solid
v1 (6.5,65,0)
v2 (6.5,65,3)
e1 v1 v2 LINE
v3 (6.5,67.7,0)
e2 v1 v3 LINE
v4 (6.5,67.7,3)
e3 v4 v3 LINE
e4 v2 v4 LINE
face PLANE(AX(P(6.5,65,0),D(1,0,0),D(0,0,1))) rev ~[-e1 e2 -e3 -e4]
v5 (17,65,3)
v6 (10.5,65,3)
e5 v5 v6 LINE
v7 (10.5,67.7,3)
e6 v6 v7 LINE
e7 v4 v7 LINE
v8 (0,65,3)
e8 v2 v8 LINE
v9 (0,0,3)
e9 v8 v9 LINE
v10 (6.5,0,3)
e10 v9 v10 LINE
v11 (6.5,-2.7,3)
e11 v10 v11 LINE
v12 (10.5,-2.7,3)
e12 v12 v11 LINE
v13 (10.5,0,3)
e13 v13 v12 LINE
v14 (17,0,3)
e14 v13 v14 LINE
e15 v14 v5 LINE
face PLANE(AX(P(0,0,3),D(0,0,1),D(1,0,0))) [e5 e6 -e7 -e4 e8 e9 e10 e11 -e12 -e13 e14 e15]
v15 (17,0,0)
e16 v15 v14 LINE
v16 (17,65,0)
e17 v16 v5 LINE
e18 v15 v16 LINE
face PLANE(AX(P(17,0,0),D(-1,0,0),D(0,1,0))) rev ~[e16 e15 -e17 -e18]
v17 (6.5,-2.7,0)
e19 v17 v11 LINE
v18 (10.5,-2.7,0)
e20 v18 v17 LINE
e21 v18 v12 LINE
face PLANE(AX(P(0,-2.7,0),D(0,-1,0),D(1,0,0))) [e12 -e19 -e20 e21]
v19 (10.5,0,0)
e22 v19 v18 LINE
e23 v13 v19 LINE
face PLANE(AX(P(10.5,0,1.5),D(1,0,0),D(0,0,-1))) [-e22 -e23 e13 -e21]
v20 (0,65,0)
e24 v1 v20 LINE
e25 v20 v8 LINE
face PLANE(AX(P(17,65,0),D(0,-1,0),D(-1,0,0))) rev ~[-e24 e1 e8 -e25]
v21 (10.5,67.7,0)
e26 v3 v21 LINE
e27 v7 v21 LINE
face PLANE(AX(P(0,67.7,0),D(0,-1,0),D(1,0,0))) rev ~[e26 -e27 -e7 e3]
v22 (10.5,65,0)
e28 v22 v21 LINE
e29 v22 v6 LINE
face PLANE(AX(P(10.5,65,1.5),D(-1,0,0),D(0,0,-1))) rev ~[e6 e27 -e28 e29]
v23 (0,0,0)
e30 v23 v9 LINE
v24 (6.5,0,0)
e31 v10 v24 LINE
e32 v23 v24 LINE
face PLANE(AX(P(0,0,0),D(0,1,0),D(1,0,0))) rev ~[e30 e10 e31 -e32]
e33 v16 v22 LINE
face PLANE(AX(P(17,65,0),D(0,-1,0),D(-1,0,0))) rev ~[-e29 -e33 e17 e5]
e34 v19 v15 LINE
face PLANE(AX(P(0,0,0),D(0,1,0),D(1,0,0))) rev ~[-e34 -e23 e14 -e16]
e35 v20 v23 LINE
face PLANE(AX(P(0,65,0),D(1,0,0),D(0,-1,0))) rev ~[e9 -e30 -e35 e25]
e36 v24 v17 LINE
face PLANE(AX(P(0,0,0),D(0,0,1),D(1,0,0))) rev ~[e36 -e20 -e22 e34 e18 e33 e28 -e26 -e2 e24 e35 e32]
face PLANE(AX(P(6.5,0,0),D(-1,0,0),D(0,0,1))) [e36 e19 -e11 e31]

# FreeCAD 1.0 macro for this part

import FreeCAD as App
import Part
import Sketcher

V = App.Vector
Q = App.Units.Quantity

doc = App.newDocument("Part")
body = doc.addObject("PartDesign::Body", "Body")

# Sketch on XY plane
sketch1 = doc.addObject("Sketcher::SketchObject", "Sketch")
body.addObject(sketch1)
sketch1.AttachmentSupport = (doc.XY_Plane, [""])
sketch1.MapMode = "FlatFace"
sketch1.addGeometry([
    Part.LineSegment(V(0, 65, 0), V(0, 0, 0)),
    Part.LineSegment(V(0, 0, 0), V(17, 0, 0)),
    Part.LineSegment(V(17, 0, 0), V(17, 65, 0)),
    Part.LineSegment(V(17, 65, 0), V(0, 65, 0)),
], False)
sketch1.addConstraint([
    Sketcher.Constraint("Coincident", 0, 2, 1, 1),
    Sketcher.Constraint("Coincident", 1, 2, 2, 1),
    Sketcher.Constraint("Coincident", 2, 2, 3, 1),
    Sketcher.Constraint("Coincident", 3, 2, 0, 1),
    Sketcher.Constraint("Vertical", 0),
    Sketcher.Constraint("Horizontal", 1),
    Sketcher.Constraint("Vertical", 2),
    Sketcher.Constraint("Horizontal", 3),
    Sketcher.Constraint("Coincident", 0, 2, -1, 1),
    Sketcher.Constraint("DistanceX", 1, 1, 1, 2, Q("17 mm")),
    Sketcher.Constraint("DistanceY", 0, 2, 0, 1, Q("65 mm")),
])
pad1 = doc.addObject("PartDesign::Pad", "Pad")
body.addObject(pad1)
pad1.Profile = sketch1
pad1.Length = 3

# Sketch on XZ plane
sketch2 = doc.addObject("Sketcher::SketchObject", "Sketch001")
body.addObject(sketch2)
sketch2.AttachmentSupport = (doc.XZ_Plane, [""])
sketch2.MapMode = "FlatFace"
sketch2.addGeometry([
    Part.LineSegment(V(6.5, 0, 0), V(10.5, 0, 0)),
    Part.LineSegment(V(10.5, 0, 0), V(10.5, 3, 0)),
    Part.LineSegment(V(10.5, 3, 0), V(6.5, 3, 0)),
    Part.LineSegment(V(6.5, 3, 0), V(6.5, 0, 0)),
], False)
sketch2.addConstraint([
    Sketcher.Constraint("Coincident", 0, 2, 1, 1),
    Sketcher.Constraint("Coincident", 1, 2, 2, 1),
    Sketcher.Constraint("Coincident", 2, 2, 3, 1),
    Sketcher.Constraint("Coincident", 3, 2, 0, 1),
    Sketcher.Constraint("Horizontal", 0),
    Sketcher.Constraint("Vertical", 1),
    Sketcher.Constraint("Horizontal", 2),
    Sketcher.Constraint("Vertical", 3),
    Sketcher.Constraint("PointOnObject", 0, 2, -1),
    Sketcher.Constraint("DistanceX", 0, 1, 0, 2, Q("4 mm")),
    Sketcher.Constraint("DistanceY", 1, 1, 1, 2, Q("3 mm")),
    Sketcher.Constraint("DistanceX", -1, 1, 0, 2, Q("10.5 mm")),
])
pad2 = doc.addObject("PartDesign::Pad", "Pad001")
body.addObject(pad2)
pad2.Profile = sketch2
pad2.Length = 2.7

# Sketch on XZ plane
sketch3 = doc.addObject("Sketcher::SketchObject", "Sketch002")
body.addObject(sketch3)
sketch3.AttachmentSupport = (doc.XZ_Plane, [""])
sketch3.MapMode = "FlatFace"
sketch3.AttachmentOffset = App.Placement(V(0, 0, -65), App.Rotation())
sketch3.addGeometry([
    Part.LineSegment(V(6.5, 0, 0), V(10.5, 0, 0)),
    Part.LineSegment(V(10.5, 0, 0), V(10.5, 3, 0)),
    Part.LineSegment(V(10.5, 3, 0), V(6.5, 3, 0)),
    Part.LineSegment(V(6.5, 3, 0), V(6.5, 0, 0)),
], False)
sketch3.addConstraint([
    Sketcher.Constraint("Coincident", 0, 2, 1, 1),
    Sketcher.Constraint("Coincident", 1, 2, 2, 1),
    Sketcher.Constraint("Coincident", 2, 2, 3, 1),
    Sketcher.Constraint("Coincident", 3, 2, 0, 1),
    Sketcher.Constraint("Horizontal", 0),
    Sketcher.Constraint("Vertical", 1),
    Sketcher.Constraint("Horizontal", 2),
    Sketcher.Constraint("Vertical", 3),
    Sketcher.Constraint("PointOnObject", 0, 2, -1),
    Sketcher.Constraint("DistanceX", 0, 1, 0, 2, Q("4 mm")),
    Sketcher.Constraint("DistanceY", 1, 1, 1, 2, Q("3 mm")),
    Sketcher.Constraint("DistanceX", -1, 1, 0, 2, Q("10.5 mm")),
])
pad3 = doc.addObject("PartDesign::Pad", "Pad002")
body.addObject(pad3)
pad3.Profile = sketch3
pad3.Length = 2.7
pad3.Reversed = True

doc.recompute()
